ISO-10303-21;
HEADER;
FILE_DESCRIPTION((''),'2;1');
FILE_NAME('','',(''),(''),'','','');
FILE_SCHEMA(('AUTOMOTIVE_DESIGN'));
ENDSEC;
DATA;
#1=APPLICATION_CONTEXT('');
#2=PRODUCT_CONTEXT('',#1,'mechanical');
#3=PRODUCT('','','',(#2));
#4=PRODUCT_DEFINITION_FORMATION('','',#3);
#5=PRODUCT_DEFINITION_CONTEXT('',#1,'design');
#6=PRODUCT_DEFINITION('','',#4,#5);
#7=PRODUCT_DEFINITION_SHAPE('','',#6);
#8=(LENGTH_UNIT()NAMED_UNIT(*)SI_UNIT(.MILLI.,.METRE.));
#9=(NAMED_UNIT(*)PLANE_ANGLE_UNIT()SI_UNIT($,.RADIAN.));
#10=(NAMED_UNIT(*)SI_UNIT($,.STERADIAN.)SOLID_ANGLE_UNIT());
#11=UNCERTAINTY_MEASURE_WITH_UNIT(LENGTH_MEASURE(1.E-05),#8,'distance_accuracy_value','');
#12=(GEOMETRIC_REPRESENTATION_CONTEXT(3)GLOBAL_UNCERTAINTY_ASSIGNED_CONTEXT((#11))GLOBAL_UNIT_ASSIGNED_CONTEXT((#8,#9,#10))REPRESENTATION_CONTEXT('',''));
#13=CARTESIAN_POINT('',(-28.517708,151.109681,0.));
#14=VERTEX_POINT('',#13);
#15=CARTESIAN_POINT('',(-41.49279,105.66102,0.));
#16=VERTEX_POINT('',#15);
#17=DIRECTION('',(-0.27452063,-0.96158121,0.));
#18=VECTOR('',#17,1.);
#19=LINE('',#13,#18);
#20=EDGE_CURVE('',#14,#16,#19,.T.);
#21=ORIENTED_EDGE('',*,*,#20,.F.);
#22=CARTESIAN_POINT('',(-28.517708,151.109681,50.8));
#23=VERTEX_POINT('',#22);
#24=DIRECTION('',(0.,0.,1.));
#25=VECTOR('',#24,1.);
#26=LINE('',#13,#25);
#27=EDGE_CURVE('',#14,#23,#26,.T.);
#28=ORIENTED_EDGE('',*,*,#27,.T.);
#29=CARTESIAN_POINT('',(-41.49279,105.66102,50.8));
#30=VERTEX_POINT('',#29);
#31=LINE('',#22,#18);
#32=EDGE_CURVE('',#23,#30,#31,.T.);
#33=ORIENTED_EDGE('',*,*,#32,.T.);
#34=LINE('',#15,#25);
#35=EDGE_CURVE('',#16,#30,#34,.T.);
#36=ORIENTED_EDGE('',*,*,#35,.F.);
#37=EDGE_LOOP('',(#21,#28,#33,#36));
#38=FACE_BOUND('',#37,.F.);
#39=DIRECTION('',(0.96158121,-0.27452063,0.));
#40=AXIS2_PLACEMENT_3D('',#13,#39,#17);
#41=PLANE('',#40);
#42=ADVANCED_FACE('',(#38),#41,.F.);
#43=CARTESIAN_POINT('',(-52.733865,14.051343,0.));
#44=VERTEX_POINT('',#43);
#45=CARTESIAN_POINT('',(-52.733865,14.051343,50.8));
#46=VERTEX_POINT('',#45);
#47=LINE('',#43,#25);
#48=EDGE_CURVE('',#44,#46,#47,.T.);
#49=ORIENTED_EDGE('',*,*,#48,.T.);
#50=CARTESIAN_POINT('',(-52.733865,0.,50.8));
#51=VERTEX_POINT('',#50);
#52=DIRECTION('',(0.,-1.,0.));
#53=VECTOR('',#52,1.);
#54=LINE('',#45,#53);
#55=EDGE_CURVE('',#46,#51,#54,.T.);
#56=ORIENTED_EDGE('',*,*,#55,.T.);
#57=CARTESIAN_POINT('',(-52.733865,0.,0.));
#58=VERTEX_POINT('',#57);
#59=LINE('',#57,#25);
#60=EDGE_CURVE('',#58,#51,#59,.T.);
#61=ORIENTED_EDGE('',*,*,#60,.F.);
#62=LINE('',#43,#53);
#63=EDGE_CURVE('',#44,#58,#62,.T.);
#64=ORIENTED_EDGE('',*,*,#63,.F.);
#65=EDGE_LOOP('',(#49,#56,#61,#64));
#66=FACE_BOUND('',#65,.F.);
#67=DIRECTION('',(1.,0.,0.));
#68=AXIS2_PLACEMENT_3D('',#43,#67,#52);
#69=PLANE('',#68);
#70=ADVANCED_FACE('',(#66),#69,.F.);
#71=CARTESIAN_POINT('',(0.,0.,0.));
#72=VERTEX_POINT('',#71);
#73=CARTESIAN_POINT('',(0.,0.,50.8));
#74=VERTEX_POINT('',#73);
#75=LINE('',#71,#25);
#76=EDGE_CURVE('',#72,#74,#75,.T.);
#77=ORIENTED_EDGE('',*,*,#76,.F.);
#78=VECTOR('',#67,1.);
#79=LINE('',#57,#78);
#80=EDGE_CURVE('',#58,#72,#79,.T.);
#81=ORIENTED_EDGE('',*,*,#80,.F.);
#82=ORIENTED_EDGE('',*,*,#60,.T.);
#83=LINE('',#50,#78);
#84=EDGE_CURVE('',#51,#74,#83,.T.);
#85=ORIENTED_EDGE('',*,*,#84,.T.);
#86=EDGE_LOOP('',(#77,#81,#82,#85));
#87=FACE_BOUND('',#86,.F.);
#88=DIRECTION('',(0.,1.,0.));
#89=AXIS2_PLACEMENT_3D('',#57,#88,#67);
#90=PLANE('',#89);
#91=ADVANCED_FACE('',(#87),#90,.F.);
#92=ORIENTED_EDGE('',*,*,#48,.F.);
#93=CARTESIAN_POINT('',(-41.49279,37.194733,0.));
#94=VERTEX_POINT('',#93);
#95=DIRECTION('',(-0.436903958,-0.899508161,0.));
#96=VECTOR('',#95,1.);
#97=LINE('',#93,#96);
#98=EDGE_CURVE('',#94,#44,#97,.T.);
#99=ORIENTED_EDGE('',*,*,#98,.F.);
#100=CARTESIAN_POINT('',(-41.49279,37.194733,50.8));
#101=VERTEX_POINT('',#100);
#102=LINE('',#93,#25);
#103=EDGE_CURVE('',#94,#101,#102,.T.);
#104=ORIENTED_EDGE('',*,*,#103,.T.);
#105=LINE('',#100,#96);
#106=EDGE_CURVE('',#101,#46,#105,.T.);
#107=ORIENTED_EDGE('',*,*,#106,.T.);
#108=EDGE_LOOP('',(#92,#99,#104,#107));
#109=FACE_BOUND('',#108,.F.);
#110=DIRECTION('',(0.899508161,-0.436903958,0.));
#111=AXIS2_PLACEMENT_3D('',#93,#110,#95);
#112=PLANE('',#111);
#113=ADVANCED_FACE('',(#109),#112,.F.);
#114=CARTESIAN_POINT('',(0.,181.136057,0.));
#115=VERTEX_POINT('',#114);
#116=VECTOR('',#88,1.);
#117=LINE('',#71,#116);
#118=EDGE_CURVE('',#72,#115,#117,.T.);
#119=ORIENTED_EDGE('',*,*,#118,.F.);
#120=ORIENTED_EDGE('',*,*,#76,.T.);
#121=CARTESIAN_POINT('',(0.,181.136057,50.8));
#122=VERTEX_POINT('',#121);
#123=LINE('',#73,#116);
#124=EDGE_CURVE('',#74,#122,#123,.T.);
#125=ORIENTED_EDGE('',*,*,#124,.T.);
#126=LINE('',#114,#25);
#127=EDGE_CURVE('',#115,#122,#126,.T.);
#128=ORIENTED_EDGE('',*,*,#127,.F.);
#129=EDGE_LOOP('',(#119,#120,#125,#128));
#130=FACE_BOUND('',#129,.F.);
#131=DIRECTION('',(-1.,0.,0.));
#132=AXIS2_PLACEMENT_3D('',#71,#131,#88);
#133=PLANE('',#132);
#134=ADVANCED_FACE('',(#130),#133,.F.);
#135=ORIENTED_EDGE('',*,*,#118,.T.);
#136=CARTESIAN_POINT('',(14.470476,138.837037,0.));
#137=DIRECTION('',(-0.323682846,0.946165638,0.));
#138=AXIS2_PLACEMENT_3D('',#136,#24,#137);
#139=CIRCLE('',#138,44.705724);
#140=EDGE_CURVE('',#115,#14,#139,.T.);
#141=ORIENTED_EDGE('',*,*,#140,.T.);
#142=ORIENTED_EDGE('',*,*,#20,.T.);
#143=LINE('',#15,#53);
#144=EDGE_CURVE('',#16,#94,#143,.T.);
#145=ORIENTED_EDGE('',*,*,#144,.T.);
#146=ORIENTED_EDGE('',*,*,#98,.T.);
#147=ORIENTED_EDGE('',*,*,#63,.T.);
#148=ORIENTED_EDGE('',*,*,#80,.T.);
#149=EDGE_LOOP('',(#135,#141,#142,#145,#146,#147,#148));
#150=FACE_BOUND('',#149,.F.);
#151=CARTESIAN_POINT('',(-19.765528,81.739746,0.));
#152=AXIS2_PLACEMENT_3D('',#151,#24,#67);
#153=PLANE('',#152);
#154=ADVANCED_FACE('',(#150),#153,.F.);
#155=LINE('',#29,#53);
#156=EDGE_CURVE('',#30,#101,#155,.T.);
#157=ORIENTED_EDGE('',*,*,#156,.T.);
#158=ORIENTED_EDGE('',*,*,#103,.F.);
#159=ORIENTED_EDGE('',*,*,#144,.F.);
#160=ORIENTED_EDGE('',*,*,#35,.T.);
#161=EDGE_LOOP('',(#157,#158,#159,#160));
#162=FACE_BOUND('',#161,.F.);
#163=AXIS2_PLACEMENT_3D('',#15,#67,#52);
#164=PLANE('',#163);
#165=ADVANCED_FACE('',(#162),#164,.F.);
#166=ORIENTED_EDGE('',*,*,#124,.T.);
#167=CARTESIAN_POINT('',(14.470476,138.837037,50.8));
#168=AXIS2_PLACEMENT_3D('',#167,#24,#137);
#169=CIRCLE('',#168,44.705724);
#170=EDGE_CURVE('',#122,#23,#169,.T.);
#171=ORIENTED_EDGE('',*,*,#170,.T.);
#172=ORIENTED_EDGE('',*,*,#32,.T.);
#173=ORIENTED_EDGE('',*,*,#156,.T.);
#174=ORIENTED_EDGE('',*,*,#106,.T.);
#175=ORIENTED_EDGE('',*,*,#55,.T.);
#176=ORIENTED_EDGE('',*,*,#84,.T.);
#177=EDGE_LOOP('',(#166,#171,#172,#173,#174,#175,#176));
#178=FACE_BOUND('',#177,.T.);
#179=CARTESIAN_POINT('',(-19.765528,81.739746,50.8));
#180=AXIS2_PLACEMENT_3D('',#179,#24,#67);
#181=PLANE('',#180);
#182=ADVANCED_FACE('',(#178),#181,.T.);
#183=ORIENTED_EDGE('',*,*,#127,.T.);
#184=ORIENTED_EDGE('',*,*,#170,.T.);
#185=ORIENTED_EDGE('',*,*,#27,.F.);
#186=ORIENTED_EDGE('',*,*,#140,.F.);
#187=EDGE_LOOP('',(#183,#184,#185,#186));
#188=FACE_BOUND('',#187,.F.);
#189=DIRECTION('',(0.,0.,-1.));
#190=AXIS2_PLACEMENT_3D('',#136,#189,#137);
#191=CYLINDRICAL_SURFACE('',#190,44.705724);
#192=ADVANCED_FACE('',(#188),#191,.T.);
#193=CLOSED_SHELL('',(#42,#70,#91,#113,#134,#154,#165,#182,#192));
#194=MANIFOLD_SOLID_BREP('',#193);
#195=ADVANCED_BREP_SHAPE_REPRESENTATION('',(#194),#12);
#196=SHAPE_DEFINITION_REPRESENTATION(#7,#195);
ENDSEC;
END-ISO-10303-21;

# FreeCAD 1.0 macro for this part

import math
import FreeCAD as App
import Part
import Sketcher
Q = App.Units.Quantity

doc = App.newDocument("Part")
body = doc.addObject("PartDesign::Body", "Body")

sketch1 = body.newObject("Sketcher::SketchObject", "Sketch")
sketch1.AttachmentSupport = (doc.getObject("XY_Plane"), [""])
sketch1.MapMode = "FlatFace"
sketch1.addGeometry([
    Part.LineSegment(App.Vector(-53, 0, 0), App.Vector(0, 0, 0)),
    Part.LineSegment(App.Vector(0, 0, 0), App.Vector(0, 181, 0)),
    Part.ArcOfCircle(Part.Circle(App.Vector(14, 139, 0), App.Vector(0, 0, 1), 45), math.radians(109), math.radians(164)),
    Part.LineSegment(App.Vector(-29, 151, 0), App.Vector(-41, 106, 0)),
    Part.LineSegment(App.Vector(-41, 106, 0), App.Vector(-41, 37, 0)),
    Part.LineSegment(App.Vector(-41, 37, 0), App.Vector(-53, 14, 0)),
    Part.LineSegment(App.Vector(-53, 14, 0), App.Vector(-53, 0, 0)),
], False)
sketch1.addConstraint([
    Sketcher.Constraint("Coincident", 0, 2, 1, 1),
    Sketcher.Constraint("Coincident", 1, 2, 2, 1),
    Sketcher.Constraint("Tangent", 2, 2, 3, 1),
    Sketcher.Constraint("Coincident", 3, 2, 4, 1),
    Sketcher.Constraint("Coincident", 4, 2, 5, 1),
    Sketcher.Constraint("Coincident", 5, 2, 6, 1),
    Sketcher.Constraint("Coincident", 6, 2, 0, 1),
    Sketcher.Constraint("Horizontal", 0),
    Sketcher.Constraint("Vertical", 1),
    Sketcher.Constraint("Vertical", 4),
    Sketcher.Constraint("Vertical", 6),
    Sketcher.Constraint("Coincident", 0, 2, -1, 1),
    Sketcher.Constraint("DistanceY", -1, 1, 2, 2, Q("5.9492 in")),
    Sketcher.Constraint("Radius", 2, 44.705724),
    Sketcher.Constraint("Distance", 5, 25.728938),
    Sketcher.Constraint("DistanceX", 0, 1, 0, 2, 52.733865),
    Sketcher.Constraint("DistanceY", 1, 1, 1, 2, 181.136057),
    Sketcher.Constraint("DistanceY", 4, 2, 4, 1, 68.466287),
    Sketcher.Constraint("DistanceY", 6, 2, 6, 1, 14.051343),
    Sketcher.Constraint("DistanceX", 2, 2, -1, 1, 28.517708),
])
pad1 = body.newObject("PartDesign::Pad", "Pad")
pad1.Profile = sketch1
pad1.Length = Q("2 in")

doc.recompute()
